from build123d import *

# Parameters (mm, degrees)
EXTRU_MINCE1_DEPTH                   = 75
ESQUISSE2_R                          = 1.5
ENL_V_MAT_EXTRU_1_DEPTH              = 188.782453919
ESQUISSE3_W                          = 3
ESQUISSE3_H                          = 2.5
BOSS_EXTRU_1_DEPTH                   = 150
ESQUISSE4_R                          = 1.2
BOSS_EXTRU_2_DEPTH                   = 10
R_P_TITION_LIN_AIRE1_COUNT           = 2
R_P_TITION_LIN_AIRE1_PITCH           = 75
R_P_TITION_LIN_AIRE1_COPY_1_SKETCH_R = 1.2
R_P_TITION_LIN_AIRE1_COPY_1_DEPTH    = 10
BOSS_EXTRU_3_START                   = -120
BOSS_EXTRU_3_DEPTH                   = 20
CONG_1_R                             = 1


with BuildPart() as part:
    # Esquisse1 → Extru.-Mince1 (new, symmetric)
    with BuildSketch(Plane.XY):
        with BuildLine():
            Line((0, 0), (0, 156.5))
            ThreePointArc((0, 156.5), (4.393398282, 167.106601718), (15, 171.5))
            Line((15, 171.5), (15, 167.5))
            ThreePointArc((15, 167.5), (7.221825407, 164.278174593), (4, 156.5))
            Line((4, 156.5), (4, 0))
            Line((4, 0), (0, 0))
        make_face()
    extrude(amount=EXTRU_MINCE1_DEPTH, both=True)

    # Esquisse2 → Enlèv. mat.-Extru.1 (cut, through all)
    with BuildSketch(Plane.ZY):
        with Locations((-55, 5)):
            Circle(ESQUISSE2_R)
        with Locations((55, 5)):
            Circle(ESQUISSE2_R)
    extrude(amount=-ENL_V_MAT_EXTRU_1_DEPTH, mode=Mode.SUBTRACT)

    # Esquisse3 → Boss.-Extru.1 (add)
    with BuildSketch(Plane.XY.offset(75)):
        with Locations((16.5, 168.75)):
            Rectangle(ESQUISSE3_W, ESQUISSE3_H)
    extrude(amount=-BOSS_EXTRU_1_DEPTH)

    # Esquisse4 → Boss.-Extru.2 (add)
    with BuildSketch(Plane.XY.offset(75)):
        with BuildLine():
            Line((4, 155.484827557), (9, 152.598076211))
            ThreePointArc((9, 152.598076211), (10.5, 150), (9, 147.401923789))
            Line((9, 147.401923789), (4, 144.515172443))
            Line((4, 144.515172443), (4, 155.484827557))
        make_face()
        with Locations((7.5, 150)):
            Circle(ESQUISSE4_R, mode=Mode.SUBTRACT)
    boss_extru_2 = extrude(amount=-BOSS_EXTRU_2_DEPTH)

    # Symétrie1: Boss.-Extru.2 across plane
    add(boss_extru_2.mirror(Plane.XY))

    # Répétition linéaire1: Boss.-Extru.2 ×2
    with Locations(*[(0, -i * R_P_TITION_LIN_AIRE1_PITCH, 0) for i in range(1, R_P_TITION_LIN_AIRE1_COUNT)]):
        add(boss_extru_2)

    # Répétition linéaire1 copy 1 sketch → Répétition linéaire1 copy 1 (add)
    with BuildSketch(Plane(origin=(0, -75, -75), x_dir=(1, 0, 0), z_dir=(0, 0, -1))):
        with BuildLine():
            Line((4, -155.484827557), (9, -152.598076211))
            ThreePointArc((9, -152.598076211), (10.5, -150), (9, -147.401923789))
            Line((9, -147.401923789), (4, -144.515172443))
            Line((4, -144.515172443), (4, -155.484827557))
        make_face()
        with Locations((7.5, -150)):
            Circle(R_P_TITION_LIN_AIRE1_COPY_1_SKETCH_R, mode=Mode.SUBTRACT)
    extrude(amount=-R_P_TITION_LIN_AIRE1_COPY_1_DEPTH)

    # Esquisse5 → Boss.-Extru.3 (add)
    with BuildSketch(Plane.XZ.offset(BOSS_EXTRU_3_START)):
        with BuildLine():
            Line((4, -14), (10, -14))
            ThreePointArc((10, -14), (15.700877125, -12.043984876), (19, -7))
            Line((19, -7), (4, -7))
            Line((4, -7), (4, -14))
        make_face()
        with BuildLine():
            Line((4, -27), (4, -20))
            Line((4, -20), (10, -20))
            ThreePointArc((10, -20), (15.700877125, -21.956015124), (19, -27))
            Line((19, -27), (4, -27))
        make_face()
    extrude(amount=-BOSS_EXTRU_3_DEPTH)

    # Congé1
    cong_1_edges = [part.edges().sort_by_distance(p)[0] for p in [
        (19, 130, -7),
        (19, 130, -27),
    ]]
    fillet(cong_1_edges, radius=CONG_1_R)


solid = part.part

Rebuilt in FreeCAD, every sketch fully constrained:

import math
import FreeCAD as App
import Part
import Sketcher
from FreeCAD import Vector
Q = App.Units.Quantity


def edges_at(feature, points):
    """Names of the edges that pass closest to the given points."""
    edges = feature.Shape.Edges
    near = lambda p: min(range(len(edges)), key=lambda i: edges[i].distToShape(Part.Vertex(*p))[0])
    return sorted({f"Edge{near(p) + 1}" for p in points})


def add_polygon(sketch, points):
    """Adds a closed chain of lines whose ends are joined by coincident constraints."""
    first, n = sketch.GeometryCount, len(points)
    for a, b in zip(points, points[1:] + points[:1]):
        sketch.addGeometry(Part.LineSegment(App.Vector(*a, 0), App.Vector(*b, 0)), False)
    for i in range(n):
        sketch.addConstraint(Sketcher.Constraint("Coincident", first + i, 2, first + (i + 1) % n, 1))

doc = App.newDocument("Part")
params = doc.addObject("Spreadsheet::Sheet", "Params")
for row, (alias, value) in enumerate([
    ("sketch1_radius", "11 mm"),
    ("sketch1_radius2", "15 mm"),
    ("sketch1_height", "156.5 mm"),
    ("pad1_length", "150 mm"),
    ("sketch2_diameter", "3 mm"),
    ("sketch3_width", "3 mm"),
    ("sketch3_height", "2.5 mm"),
    ("pad2_length", "150 mm"),
    ("sketch4_radius", "3 mm"),
    ("sketch4_diameter", "2.4 mm"),
    ("pad3_length", "10 mm"),
    ("linearpattern_pitch", "75 mm"),
    ("sketch5_radius", "3 mm"),
    ("sketch5_diameter", "2.4 mm"),
    ("pad4_length", "10 mm"),
    ("sketch6_width", "6 mm"),
    ("sketch6_width2", "15 mm"),
    ("sketch6_height", "7 mm"),
    ("pad5_length", "20 mm"),
    ("fillet_radius", "1 mm"),
], start=1):
    params.set(f"A{row}", alias)
    params.set(f"B{row}", "=" + value)
    params.setAlias(f"B{row}", alias)

body = doc.addObject("PartDesign::Body", "Body")

sketch1 = doc.addObject("Sketcher::SketchObject", "Sketch")
body.addObject(sketch1)
sketch1.AttachmentSupport = (doc.XY_Plane, [""])
sketch1.MapMode = "FlatFace"
sketch1.addGeometry(Part.LineSegment(Vector(0, 156.5, 0), Vector(0, 0, 0)), False)
sketch1.addGeometry(Part.LineSegment(Vector(0, 0, 0), Vector(4, 0, 0)), False)
sketch1.addGeometry(Part.LineSegment(Vector(4, 0, 0), Vector(4, 156.5, 0)), False)
sketch1.addGeometry(Part.ArcOfCircle(Part.Circle(Vector(15, 156.5, 0), Vector(0, 0, 1), 11), math.radians(90), math.radians(180)), False)
sketch1.addGeometry(Part.LineSegment(Vector(15, 167.5, 0), Vector(15, 171.5, 0)), False)
sketch1.addGeometry(Part.ArcOfCircle(Part.Circle(Vector(15, 156.5, 0), Vector(0, 0, 1), 15), math.radians(90), math.radians(180)), False)
sketch1.addConstraint(Sketcher.Constraint("Coincident", 0, 2, 1, 1))
sketch1.addConstraint(Sketcher.Constraint("Coincident", 1, 2, 2, 1))
sketch1.addConstraint(Sketcher.Constraint("Tangent", 2, 2, 3, 2))
sketch1.addConstraint(Sketcher.Constraint("Coincident", 3, 1, 4, 1))
sketch1.addConstraint(Sketcher.Constraint("Coincident", 4, 2, 5, 1))
sketch1.addConstraint(Sketcher.Constraint("Tangent", 5, 2, 0, 1))
sketch1.addConstraint(Sketcher.Constraint("Vertical", 0))
sketch1.addConstraint(Sketcher.Constraint("Horizontal", 1))
sketch1.addConstraint(Sketcher.Constraint("Vertical", 2))
sketch1.addConstraint(Sketcher.Constraint("Vertical", 4))
sketch1.addConstraint(Sketcher.Constraint("Coincident", 0, 2, -1, 1))
sketch1.addConstraint(Sketcher.Constraint("Coincident", 5, 3, 3, 3))
sketch1.addConstraint(Sketcher.Constraint("Vertical", 5, 3, 3, 1))
sketch1.addConstraint(Sketcher.Constraint("Radius", 3, Q("11 mm")))
sketch1.addConstraint(Sketcher.Constraint("Radius", 5, Q("15 mm")))
sketch1.addConstraint(Sketcher.Constraint("DistanceY", 0, 2, 0, 1, Q("156.5 mm")))
sketch1.setExpression("Constraints[13]", "Params.sketch1_radius")
sketch1.setExpression("Constraints[14]", "Params.sketch1_radius2")
sketch1.setExpression("Constraints[15]", "Params.sketch1_height")
pad1 = doc.addObject("PartDesign::Pad", "Pad")
body.addObject(pad1)
pad1.Profile = sketch1
pad1.setExpression("Length", "Params.pad1_length")
pad1.Midplane = True

sketch2 = doc.addObject("Sketcher::SketchObject", "Sketch001")
body.addObject(sketch2)
sketch2.AttachmentSupport = (doc.YZ_Plane, [""])
sketch2.MapMode = "FlatFace"
sketch2.addGeometry(Part.Circle(Vector(5, -55, 0), Vector(0, 0, 1), 1.5), False)
sketch2.addGeometry(Part.Circle(Vector(5, 55, 0), Vector(0, 0, 1), 1.5), False)
sketch2.addConstraint(Sketcher.Constraint("Equal", 0, 1))
sketch2.addConstraint(Sketcher.Constraint("Symmetric", 0, 3, 1, 3, -1))
sketch2.addConstraint(Sketcher.Constraint("Diameter", 0, Q("3 mm")))
sketch2.addConstraint(Sketcher.Constraint("DistanceX", -1, 1, 0, 3, Q("5 mm")))
sketch2.addConstraint(Sketcher.Constraint("DistanceY", 0, 3, -1, 1, Q("55 mm")))
sketch2.setExpression("Constraints[2]", "Params.sketch2_diameter")
pocket1 = doc.addObject("PartDesign::Pocket", "Pocket")
body.addObject(pocket1)
pocket1.Profile = sketch2
pocket1.Type = "ThroughAll"
pocket1.Reversed = True

sketch3 = doc.addObject("Sketcher::SketchObject", "Sketch002")
body.addObject(sketch3)
sketch3.AttachmentSupport = (doc.XY_Plane, [""])
sketch3.MapMode = "FlatFace"
sketch3.AttachmentOffset = App.Placement(Vector(0, 0, 75), App.Rotation())
add_polygon(sketch3, [(15, 170), (15, 167.5), (18, 167.5), (18, 170)])
sketch3.addConstraint(Sketcher.Constraint("Vertical", 0))
sketch3.addConstraint(Sketcher.Constraint("Horizontal", 1))
sketch3.addConstraint(Sketcher.Constraint("Vertical", 2))
sketch3.addConstraint(Sketcher.Constraint("Horizontal", 3))
sketch3.addConstraint(Sketcher.Constraint("DistanceX", 1, 1, 1, 2, Q("3 mm")))
sketch3.addConstraint(Sketcher.Constraint("DistanceY", 0, 2, 0, 1, Q("2.5 mm")))
sketch3.addConstraint(Sketcher.Constraint("DistanceX", -1, 1, 0, 2, Q("15 mm")))
sketch3.addConstraint(Sketcher.Constraint("DistanceY", -1, 1, 2, 2, Q("170 mm")))
sketch3.setExpression("Constraints[8]", "Params.sketch3_width")
sketch3.setExpression("Constraints[9]", "Params.sketch3_height")
pad2 = doc.addObject("PartDesign::Pad", "Pad001")
body.addObject(pad2)
pad2.Profile = sketch3
pad2.setExpression("Length", "Params.pad2_length")
pad2.Reversed = True

sketch4 = doc.addObject("Sketcher::SketchObject", "Sketch003")
body.addObject(sketch4)
sketch4.AttachmentSupport = (doc.XY_Plane, [""])
sketch4.MapMode = "FlatFace"
sketch4.AttachmentOffset = App.Placement(Vector(0, 0, 75), App.Rotation())
sketch4.addGeometry(Part.LineSegment(Vector(9, 152.598076, 0), Vector(4, 155.484828, 0)), False)
sketch4.addGeometry(Part.LineSegment(Vector(4, 155.484828, 0), Vector(4, 144.515172, 0)), False)
sketch4.addGeometry(Part.LineSegment(Vector(4, 144.515172, 0), Vector(9, 147.401924, 0)), False)
sketch4.addGeometry(Part.ArcOfCircle(Part.Circle(Vector(7.5, 150, 0), Vector(0, 0, 1), 3), math.radians(-60), math.radians(60)), False)
sketch4.addGeometry(Part.Circle(Vector(7.5, 150, 0), Vector(0, 0, 1), 1.2), False)
sketch4.addConstraint(Sketcher.Constraint("Coincident", 0, 2, 1, 1))
sketch4.addConstraint(Sketcher.Constraint("Coincident", 1, 2, 2, 1))
sketch4.addConstraint(Sketcher.Constraint("Tangent", 2, 2, 3, 1))
sketch4.addConstraint(Sketcher.Constraint("Tangent", 3, 2, 0, 1))
sketch4.addConstraint(Sketcher.Constraint("Vertical", 1))
sketch4.addConstraint(Sketcher.Constraint("Coincident", 4, 3, 3, 3))
sketch4.addConstraint(Sketcher.Constraint("Vertical", 2, 2, 3, 2))
sketch4.addConstraint(Sketcher.Constraint("Radius", 3, Q("3 mm")))
sketch4.addConstraint(Sketcher.Constraint("Diameter", 4, Q("2.4 mm")))
sketch4.addConstraint(Sketcher.Constraint("Angle", 0, Q("150 deg")))
sketch4.addConstraint(Sketcher.Constraint("DistanceY", -1, 1, 3, 3, Q("150 mm")))
sketch4.addConstraint(Sketcher.Constraint("DistanceX", -1, 1, 0, 2, Q("4 mm")))
sketch4.addConstraint(Sketcher.Constraint("DistanceX", -1, 1, 2, 2, Q("9 mm")))
sketch4.setExpression("Constraints[7]", "Params.sketch4_radius")
sketch4.setExpression("Constraints[8]", "Params.sketch4_diameter")
pad3 = doc.addObject("PartDesign::Pad", "Pad002")
body.addObject(pad3)
pad3.Profile = sketch4
pad3.setExpression("Length", "Params.pad3_length")
pad3.Reversed = True
doc.recompute()

mirrored = doc.addObject("PartDesign::Mirrored", "Mirrored")
body.addObject(mirrored)
mirrored.Originals = [pad3]
mirrored.MirrorPlane = (doc.XY_Plane, [""])
body.Tip = mirrored
doc.recompute()

linearpattern = doc.addObject("PartDesign::LinearPattern", "LinearPattern")
body.addObject(linearpattern)
linearpattern.Originals = [pad3]
linearpattern.Direction = (doc.Y_Axis, [""])
linearpattern.Mode = "offset"
linearpattern.setExpression("Offset", "Params.linearpattern_pitch")
linearpattern.Occurrences = 2
linearpattern.Reversed = True
body.Tip = linearpattern

sketch5 = doc.addObject("Sketcher::SketchObject", "Sketch004")
body.addObject(sketch5)
sketch5.AttachmentSupport = (doc.XY_Plane, [""])
sketch5.MapMode = "FlatFace"
sketch5.AttachmentOffset = App.Placement(Vector(0, 0, -75), App.Rotation())
sketch5.addGeometry(Part.LineSegment(Vector(4, 80.484828, 0), Vector(9, 77.598076, 0)), False)
sketch5.addGeometry(Part.ArcOfCircle(Part.Circle(Vector(7.5, 75, 0), Vector(0, 0, 1), 3), math.radians(-60), math.radians(60)), False)
sketch5.addGeometry(Part.LineSegment(Vector(9, 72.401924, 0), Vector(4, 69.515172, 0)), False)
sketch5.addGeometry(Part.LineSegment(Vector(4, 69.515172, 0), Vector(4, 80.484828, 0)), False)
sketch5.addGeometry(Part.Circle(Vector(7.5, 75, 0), Vector(0, 0, 1), 1.2), False)
sketch5.addConstraint(Sketcher.Constraint("Tangent", 0, 2, 1, 2))
sketch5.addConstraint(Sketcher.Constraint("Tangent", 1, 1, 2, 1))
sketch5.addConstraint(Sketcher.Constraint("Coincident", 2, 2, 3, 1))
sketch5.addConstraint(Sketcher.Constraint("Coincident", 3, 2, 0, 1))
sketch5.addConstraint(Sketcher.Constraint("Vertical", 3))
sketch5.addConstraint(Sketcher.Constraint("Coincident", 4, 3, 1, 3))
sketch5.addConstraint(Sketcher.Constraint("Vertical", 0, 2, 1, 1))
sketch5.addConstraint(Sketcher.Constraint("Radius", 1, Q("3 mm")))
sketch5.addConstraint(Sketcher.Constraint("Diameter", 4, Q("2.4 mm")))
sketch5.addConstraint(Sketcher.Constraint("Angle", 0, Q("-30 deg")))
sketch5.addConstraint(Sketcher.Constraint("DistanceY", -1, 1, 1, 3, Q("75 mm")))
sketch5.addConstraint(Sketcher.Constraint("DistanceX", -1, 1, 0, 2, Q("9 mm")))
sketch5.addConstraint(Sketcher.Constraint("DistanceX", -1, 1, 2, 2, Q("4 mm")))
sketch5.setExpression("Constraints[7]", "Params.sketch5_radius")
sketch5.setExpression("Constraints[8]", "Params.sketch5_diameter")
pad4 = doc.addObject("PartDesign::Pad", "Pad003")
body.addObject(pad4)
pad4.Profile = sketch5
pad4.setExpression("Length", "Params.pad4_length")

sketch6 = doc.addObject("Sketcher::SketchObject", "Sketch005")
body.addObject(sketch6)
sketch6.AttachmentSupport = (doc.XZ_Plane, [""])
sketch6.MapMode = "FlatFace"
sketch6.AttachmentOffset = App.Placement(Vector(0, 0, -120), App.Rotation())
sketch6.addGeometry(Part.LineSegment(Vector(4, -14, 0), Vector(10, -14, 0)), False)
sketch6.addGeometry(Part.ArcOfCircle(Part.Circle(Vector(10, -4.714286, 0), Vector(0, 0, 1), 9.285714), math.radians(-90), math.radians(-14.250033)), False)
sketch6.addGeometry(Part.LineSegment(Vector(19, -7, 0), Vector(4, -7, 0)), False)
sketch6.addGeometry(Part.LineSegment(Vector(4, -7, 0), Vector(4, -14, 0)), False)
sketch6.addGeometry(Part.LineSegment(Vector(4, -20, 0), Vector(4, -27, 0)), False)
sketch6.addGeometry(Part.LineSegment(Vector(4, -27, 0), Vector(19, -27, 0)), False)
sketch6.addGeometry(Part.ArcOfCircle(Part.Circle(Vector(10, -29.285714, 0), Vector(0, 0, 1), 9.285714), math.radians(14.250033), math.radians(90)), False)
sketch6.addGeometry(Part.LineSegment(Vector(10, -20, 0), Vector(4, -20, 0)), False)
sketch6.addConstraint(Sketcher.Constraint("Tangent", 0, 2, 1, 1))
sketch6.addConstraint(Sketcher.Constraint("Coincident", 1, 2, 2, 1))
sketch6.addConstraint(Sketcher.Constraint("Coincident", 2, 2, 3, 1))
sketch6.addConstraint(Sketcher.Constraint("Coincident", 3, 2, 0, 1))
sketch6.addConstraint(Sketcher.Constraint("Coincident", 4, 2, 5, 1))
sketch6.addConstraint(Sketcher.Constraint("Coincident", 5, 2, 6, 1))
sketch6.addConstraint(Sketcher.Constraint("Tangent", 6, 2, 7, 1))
sketch6.addConstraint(Sketcher.Constraint("Coincident", 7, 2, 4, 1))
sketch6.addConstraint(Sketcher.Constraint("Horizontal", 0))
sketch6.addConstraint(Sketcher.Constraint("Horizontal", 2))
sketch6.addConstraint(Sketcher.Constraint("Vertical", 3))
sketch6.addConstraint(Sketcher.Constraint("Vertical", 4))
sketch6.addConstraint(Sketcher.Constraint("Horizontal", 5))
sketch6.addConstraint(Sketcher.Constraint("Horizontal", 7))
sketch6.addConstraint(Sketcher.Constraint("Equal", 1, 6))
sketch6.addConstraint(Sketcher.Constraint("Vertical", 1, 3, 6, 3))
sketch6.addConstraint(Sketcher.Constraint("Vertical", 3, 2, 4, 2))
sketch6.addConstraint(Sketcher.Constraint("Vertical", 1, 2, 5, 2))
sketch6.addConstraint(Sketcher.Constraint("DistanceX", 0, 1, 0, 2, Q("6 mm")))
sketch6.addConstraint(Sketcher.Constraint("DistanceX", 2, 2, 2, 1, Q("15 mm")))
sketch6.addConstraint(Sketcher.Constraint("DistanceY", 3, 2, 3, 1, Q("7 mm")))
sketch6.addConstraint(Sketcher.Constraint("DistanceX", -1, 1, 1, 3, Q("10 mm")))
sketch6.addConstraint(Sketcher.Constraint("DistanceY", 0, 2, -1, 1, Q("14 mm")))
sketch6.addConstraint(Sketcher.Constraint("DistanceY", 4, 2, -1, 1, Q("27 mm")))
sketch6.setExpression("Constraints[18]", "Params.sketch6_width")
sketch6.setExpression("Constraints[19]", "Params.sketch6_width2")
sketch6.setExpression("Constraints[20]", "Params.sketch6_height")
pad5 = doc.addObject("PartDesign::Pad", "Pad004")
body.addObject(pad5)
pad5.Profile = sketch6
pad5.setExpression("Length", "Params.pad5_length")
pad5.Reversed = True
doc.recompute()

fillet = doc.addObject("PartDesign::Fillet", "Fillet")
body.addObject(fillet)
fillet.Base = (pad5, edges_at(pad5, [(19, 130, -7), (19, 130, -27)]))
fillet.setExpression("Radius", "Params.fillet_radius")

doc.recompute()
